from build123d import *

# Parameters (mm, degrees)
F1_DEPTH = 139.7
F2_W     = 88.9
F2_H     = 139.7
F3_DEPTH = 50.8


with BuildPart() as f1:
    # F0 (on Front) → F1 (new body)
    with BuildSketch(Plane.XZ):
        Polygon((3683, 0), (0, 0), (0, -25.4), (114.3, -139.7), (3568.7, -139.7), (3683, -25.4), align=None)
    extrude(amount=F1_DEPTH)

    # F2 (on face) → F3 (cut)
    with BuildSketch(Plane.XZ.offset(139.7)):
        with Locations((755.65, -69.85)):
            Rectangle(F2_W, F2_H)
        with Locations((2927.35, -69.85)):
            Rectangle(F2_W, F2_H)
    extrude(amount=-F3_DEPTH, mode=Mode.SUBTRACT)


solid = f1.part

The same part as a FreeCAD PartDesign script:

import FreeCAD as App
import Part
import Sketcher

V = App.Vector
Q = App.Units.Quantity


def add_polygon(sketch, points):
    """Adds a closed chain of lines whose ends are joined by coincident constraints."""
    first, n = sketch.GeometryCount, len(points)
    for a, b in zip(points, points[1:] + points[:1]):
        sketch.addGeometry(Part.LineSegment(App.Vector(*a, 0), App.Vector(*b, 0)), False)
    for i in range(n):
        sketch.addConstraint(Sketcher.Constraint("Coincident", first + i, 2, first + (i + 1) % n, 1))

doc = App.newDocument("Part")
body = doc.addObject("PartDesign::Body", "Body")

# Sketch on XZ plane
sketch1 = doc.addObject("Sketcher::SketchObject", "Sketch")
body.addObject(sketch1)
sketch1.AttachmentSupport = (doc.XZ_Plane, [""])
sketch1.MapMode = "FlatFace"
add_polygon(sketch1, [(3683, 0), (0, 0), (0, -25.4), (114.3, -139.7), (3568.7, -139.7), (3683, -25.4)])  # lines 0-5
sketch1.addConstraint(Sketcher.Constraint("Horizontal", 0))
sketch1.addConstraint(Sketcher.Constraint("Vertical", 1))
sketch1.addConstraint(Sketcher.Constraint("Horizontal", 3))
sketch1.addConstraint(Sketcher.Constraint("Vertical", 5))
sketch1.addConstraint(Sketcher.Constraint("Coincident", 0, 2, -1, 1))
sketch1.addConstraint(Sketcher.Constraint("Perpendicular", 2, 4))
sketch1.addConstraint(Sketcher.Constraint("Horizontal", 1, 2, 4, 2))
sketch1.addConstraint(Sketcher.Constraint("Equal", 2, 4))
sketch1.addConstraint(Sketcher.Constraint("DistanceX", 0, 2, 0, 1, Q("145 in")))
sketch1.addConstraint(Sketcher.Constraint("DistanceX", 3, 1, 3, 2, Q("136 in")))
sketch1.addConstraint(Sketcher.Constraint("DistanceY", 1, 2, 1, 1, Q("1 in")))
pad1 = doc.addObject("PartDesign::Pad", "Pad")
body.addObject(pad1)
pad1.Profile = sketch1
pad1.Length = Q("5.5 in")

# Sketch on XZ plane
sketch2 = doc.addObject("Sketcher::SketchObject", "Sketch001")
body.addObject(sketch2)
sketch2.AttachmentSupport = (doc.XZ_Plane, [""])
sketch2.MapMode = "FlatFace"
sketch2.AttachmentOffset = App.Placement(V(0, 0, 5.5 * 25.4), App.Rotation())
add_polygon(sketch2, [(711.2, 0), (711.2, -139.7), (800.1, -139.7), (800.1, 0)])  # lines 0-3
add_polygon(sketch2, [(2882.9, 0), (2882.9, -139.7), (2971.8, -139.7), (2971.8, 0)])  # lines 4-7
sketch2.addConstraint(Sketcher.Constraint("Vertical", 0))
sketch2.addConstraint(Sketcher.Constraint("Horizontal", 1))
sketch2.addConstraint(Sketcher.Constraint("Vertical", 2))
sketch2.addConstraint(Sketcher.Constraint("Horizontal", 3))
sketch2.addConstraint(Sketcher.Constraint("Vertical", 4))
sketch2.addConstraint(Sketcher.Constraint("Horizontal", 5))
sketch2.addConstraint(Sketcher.Constraint("Vertical", 6))
sketch2.addConstraint(Sketcher.Constraint("Horizontal", 7))
sketch2.addConstraint(Sketcher.Constraint("PointOnObject", 2, 2, -1))
sketch2.addConstraint(Sketcher.Constraint("PointOnObject", 6, 2, -1))
sketch2.addConstraint(Sketcher.Constraint("Horizontal", 1, 2, 4, 2))
sketch2.addConstraint(Sketcher.Constraint("Equal", 3, 5))
sketch2.addConstraint(Sketcher.Constraint("DistanceX", 1, 1, 1, 2, Q("3.5 in")))
sketch2.addConstraint(Sketcher.Constraint("DistanceY", 0, 2, 0, 1, Q("5.5 in")))
sketch2.addConstraint(Sketcher.Constraint("DistanceX", -1, 1, 0, 2, Q("28 in")))
sketch2.addConstraint(Sketcher.Constraint("DistanceX", -1, 1, 5, 2, Q("117 in")))
pocket1 = doc.addObject("PartDesign::Pocket", "Pocket")
body.addObject(pocket1)
pocket1.Profile = sketch2
pocket1.Length = Q("2 in")

doc.recompute()
